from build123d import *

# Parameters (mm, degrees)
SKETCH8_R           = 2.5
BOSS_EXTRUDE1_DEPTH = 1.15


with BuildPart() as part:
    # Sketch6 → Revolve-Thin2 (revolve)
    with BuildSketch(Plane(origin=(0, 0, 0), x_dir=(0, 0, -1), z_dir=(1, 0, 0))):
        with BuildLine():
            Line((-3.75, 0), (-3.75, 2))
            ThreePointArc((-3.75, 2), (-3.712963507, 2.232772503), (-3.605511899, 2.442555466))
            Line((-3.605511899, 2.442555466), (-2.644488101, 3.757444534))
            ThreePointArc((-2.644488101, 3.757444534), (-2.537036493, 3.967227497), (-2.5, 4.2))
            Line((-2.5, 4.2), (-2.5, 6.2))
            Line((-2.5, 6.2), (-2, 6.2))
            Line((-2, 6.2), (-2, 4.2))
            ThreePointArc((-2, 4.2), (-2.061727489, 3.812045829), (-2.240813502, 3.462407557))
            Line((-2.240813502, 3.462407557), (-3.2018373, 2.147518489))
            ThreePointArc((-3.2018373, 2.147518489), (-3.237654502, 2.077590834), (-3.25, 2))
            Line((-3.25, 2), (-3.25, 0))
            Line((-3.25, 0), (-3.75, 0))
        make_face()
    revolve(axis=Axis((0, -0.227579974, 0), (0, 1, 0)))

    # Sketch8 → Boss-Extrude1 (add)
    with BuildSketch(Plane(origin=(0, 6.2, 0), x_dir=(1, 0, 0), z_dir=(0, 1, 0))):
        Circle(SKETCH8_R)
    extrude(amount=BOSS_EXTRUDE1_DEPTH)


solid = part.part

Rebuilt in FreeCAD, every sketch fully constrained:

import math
import FreeCAD as App
import Part
import Sketcher
from FreeCAD import Vector
Q = App.Units.Quantity

doc = App.newDocument("Part")
body = doc.addObject("PartDesign::Body", "Body")

# Sketch on YZ plane
sketch1 = body.newObject("Sketcher::SketchObject", "Sketch")
sketch1.AttachmentSupport = (doc.getObject("YZ_Plane"), [""])
sketch1.MapMode = "FlatFace"
sketch1.addGeometry([
    Part.LineSegment(Vector(2, 3.75, 0), Vector(0, 3.75, 0)),  # 0
    Part.LineSegment(Vector(0, 3.75, 0), Vector(0, 3.25, 0)),  # 1
    Part.LineSegment(Vector(0, 3.25, 0), Vector(2, 3.25, 0)),  # 2
    Part.ArcOfCircle(Part.Circle(Vector(2, 3, 0), Vector(0, 0, 1), 0.25), math.radians(53.837745), math.radians(89.999999)),  # 3
    Part.LineSegment(Vector(2.147518, 3.201837, 0), Vector(3.462408, 2.240814, 0)),  # 4
    Part.ArcOfCircle(Part.Circle(Vector(4.2, 3.25, 0), Vector(0, 0, 1), 1.25), math.radians(-126.162256), math.radians(-90)),  # 5
    Part.LineSegment(Vector(4.2, 2, 0), Vector(6.2, 2, 0)),  # 6
    Part.LineSegment(Vector(6.2, 2, 0), Vector(6.2, 2.5, 0)),  # 7
    Part.LineSegment(Vector(6.2, 2.5, 0), Vector(4.2, 2.5, 0)),  # 8
    Part.ArcOfCircle(Part.Circle(Vector(4.2, 3.25, 0), Vector(0, 0, 1), 0.75), math.radians(-126.162256), math.radians(-90)),  # 9
    Part.LineSegment(Vector(3.757445, 2.644488, 0), Vector(2.442555, 3.605512, 0)),  # 10
    Part.ArcOfCircle(Part.Circle(Vector(2, 3, 0), Vector(0, 0, 1), 0.75), math.radians(53.837744), math.radians(90)),  # 11
], False)
sketch1.addConstraint([
    Sketcher.Constraint("Coincident", 0, 2, 1, 1),
    Sketcher.Constraint("Coincident", 1, 2, 2, 1),
    Sketcher.Constraint("Tangent", 2, 2, 3, 2),
    Sketcher.Constraint("Tangent", 3, 1, 4, 1),
    Sketcher.Constraint("Tangent", 4, 2, 5, 1),
    Sketcher.Constraint("Tangent", 5, 2, 6, 1),
    Sketcher.Constraint("Coincident", 6, 2, 7, 1),
    Sketcher.Constraint("Coincident", 7, 2, 8, 1),
    Sketcher.Constraint("Tangent", 8, 2, 9, 2),
    Sketcher.Constraint("Tangent", 9, 1, 10, 1),
    Sketcher.Constraint("Tangent", 10, 2, 11, 1),
    Sketcher.Constraint("Tangent", 11, 2, 0, 1),
    Sketcher.Constraint("Horizontal", 0),
    Sketcher.Constraint("Vertical", 1),
    Sketcher.Constraint("Horizontal", 2),
    Sketcher.Constraint("Horizontal", 6),
    Sketcher.Constraint("Vertical", 7),
    Sketcher.Constraint("Horizontal", 8),
    Sketcher.Constraint("Coincident", 9, 3, 5, 3),
    Sketcher.Constraint("Coincident", 11, 3, 3, 3),
    Sketcher.Constraint("Equal", 9, 11),
    Sketcher.Constraint("PointOnObject", 0, 2, -2),
    Sketcher.Constraint("Parallel", 4, 10),
    Sketcher.Constraint("Horizontal", 9, 3, 1, 2),
    Sketcher.Constraint("Equal", 2, 6),
    Sketcher.Constraint("DistanceX", 0, 2, 0, 1, Q("2 mm")),
    Sketcher.Constraint("Radius", 3, Q("0.25 mm")),
    Sketcher.Constraint("Radius", 5, Q("1.25 mm")),
    Sketcher.Constraint("DistanceY", -1, 1, 3, 3, Q("3 mm")),
    Sketcher.Constraint("DistanceX", -1, 1, 5, 3, Q("4.2 mm")),
])
revolution = body.newObject("PartDesign::Revolution", "Revolution")
revolution.Profile = sketch1
revolution.ReferenceAxis = (sketch1, ["H_Axis"])
revolution.Angle = 360

# Sketch on XZ plane
sketch2 = body.newObject("Sketcher::SketchObject", "Sketch001")
sketch2.AttachmentSupport = (doc.getObject("XZ_Plane"), [""])
sketch2.MapMode = "FlatFace"
sketch2.AttachmentOffset = App.Placement(Vector(0, 0, -6.2), App.Rotation())
sketch2.addGeometry(Part.Circle(Vector(0, 0, 0), Vector(0, 0, 1), 2.5), False)
sketch2.addConstraint([
    Sketcher.Constraint("Coincident", 0, 3, -1, 1),
    Sketcher.Constraint("Diameter", 0, Q("5 mm")),
])
pad1 = body.newObject("PartDesign::Pad", "Pad")
pad1.Profile = sketch2
pad1.Length = 1.15
pad1.Reversed = True

doc.recompute()
